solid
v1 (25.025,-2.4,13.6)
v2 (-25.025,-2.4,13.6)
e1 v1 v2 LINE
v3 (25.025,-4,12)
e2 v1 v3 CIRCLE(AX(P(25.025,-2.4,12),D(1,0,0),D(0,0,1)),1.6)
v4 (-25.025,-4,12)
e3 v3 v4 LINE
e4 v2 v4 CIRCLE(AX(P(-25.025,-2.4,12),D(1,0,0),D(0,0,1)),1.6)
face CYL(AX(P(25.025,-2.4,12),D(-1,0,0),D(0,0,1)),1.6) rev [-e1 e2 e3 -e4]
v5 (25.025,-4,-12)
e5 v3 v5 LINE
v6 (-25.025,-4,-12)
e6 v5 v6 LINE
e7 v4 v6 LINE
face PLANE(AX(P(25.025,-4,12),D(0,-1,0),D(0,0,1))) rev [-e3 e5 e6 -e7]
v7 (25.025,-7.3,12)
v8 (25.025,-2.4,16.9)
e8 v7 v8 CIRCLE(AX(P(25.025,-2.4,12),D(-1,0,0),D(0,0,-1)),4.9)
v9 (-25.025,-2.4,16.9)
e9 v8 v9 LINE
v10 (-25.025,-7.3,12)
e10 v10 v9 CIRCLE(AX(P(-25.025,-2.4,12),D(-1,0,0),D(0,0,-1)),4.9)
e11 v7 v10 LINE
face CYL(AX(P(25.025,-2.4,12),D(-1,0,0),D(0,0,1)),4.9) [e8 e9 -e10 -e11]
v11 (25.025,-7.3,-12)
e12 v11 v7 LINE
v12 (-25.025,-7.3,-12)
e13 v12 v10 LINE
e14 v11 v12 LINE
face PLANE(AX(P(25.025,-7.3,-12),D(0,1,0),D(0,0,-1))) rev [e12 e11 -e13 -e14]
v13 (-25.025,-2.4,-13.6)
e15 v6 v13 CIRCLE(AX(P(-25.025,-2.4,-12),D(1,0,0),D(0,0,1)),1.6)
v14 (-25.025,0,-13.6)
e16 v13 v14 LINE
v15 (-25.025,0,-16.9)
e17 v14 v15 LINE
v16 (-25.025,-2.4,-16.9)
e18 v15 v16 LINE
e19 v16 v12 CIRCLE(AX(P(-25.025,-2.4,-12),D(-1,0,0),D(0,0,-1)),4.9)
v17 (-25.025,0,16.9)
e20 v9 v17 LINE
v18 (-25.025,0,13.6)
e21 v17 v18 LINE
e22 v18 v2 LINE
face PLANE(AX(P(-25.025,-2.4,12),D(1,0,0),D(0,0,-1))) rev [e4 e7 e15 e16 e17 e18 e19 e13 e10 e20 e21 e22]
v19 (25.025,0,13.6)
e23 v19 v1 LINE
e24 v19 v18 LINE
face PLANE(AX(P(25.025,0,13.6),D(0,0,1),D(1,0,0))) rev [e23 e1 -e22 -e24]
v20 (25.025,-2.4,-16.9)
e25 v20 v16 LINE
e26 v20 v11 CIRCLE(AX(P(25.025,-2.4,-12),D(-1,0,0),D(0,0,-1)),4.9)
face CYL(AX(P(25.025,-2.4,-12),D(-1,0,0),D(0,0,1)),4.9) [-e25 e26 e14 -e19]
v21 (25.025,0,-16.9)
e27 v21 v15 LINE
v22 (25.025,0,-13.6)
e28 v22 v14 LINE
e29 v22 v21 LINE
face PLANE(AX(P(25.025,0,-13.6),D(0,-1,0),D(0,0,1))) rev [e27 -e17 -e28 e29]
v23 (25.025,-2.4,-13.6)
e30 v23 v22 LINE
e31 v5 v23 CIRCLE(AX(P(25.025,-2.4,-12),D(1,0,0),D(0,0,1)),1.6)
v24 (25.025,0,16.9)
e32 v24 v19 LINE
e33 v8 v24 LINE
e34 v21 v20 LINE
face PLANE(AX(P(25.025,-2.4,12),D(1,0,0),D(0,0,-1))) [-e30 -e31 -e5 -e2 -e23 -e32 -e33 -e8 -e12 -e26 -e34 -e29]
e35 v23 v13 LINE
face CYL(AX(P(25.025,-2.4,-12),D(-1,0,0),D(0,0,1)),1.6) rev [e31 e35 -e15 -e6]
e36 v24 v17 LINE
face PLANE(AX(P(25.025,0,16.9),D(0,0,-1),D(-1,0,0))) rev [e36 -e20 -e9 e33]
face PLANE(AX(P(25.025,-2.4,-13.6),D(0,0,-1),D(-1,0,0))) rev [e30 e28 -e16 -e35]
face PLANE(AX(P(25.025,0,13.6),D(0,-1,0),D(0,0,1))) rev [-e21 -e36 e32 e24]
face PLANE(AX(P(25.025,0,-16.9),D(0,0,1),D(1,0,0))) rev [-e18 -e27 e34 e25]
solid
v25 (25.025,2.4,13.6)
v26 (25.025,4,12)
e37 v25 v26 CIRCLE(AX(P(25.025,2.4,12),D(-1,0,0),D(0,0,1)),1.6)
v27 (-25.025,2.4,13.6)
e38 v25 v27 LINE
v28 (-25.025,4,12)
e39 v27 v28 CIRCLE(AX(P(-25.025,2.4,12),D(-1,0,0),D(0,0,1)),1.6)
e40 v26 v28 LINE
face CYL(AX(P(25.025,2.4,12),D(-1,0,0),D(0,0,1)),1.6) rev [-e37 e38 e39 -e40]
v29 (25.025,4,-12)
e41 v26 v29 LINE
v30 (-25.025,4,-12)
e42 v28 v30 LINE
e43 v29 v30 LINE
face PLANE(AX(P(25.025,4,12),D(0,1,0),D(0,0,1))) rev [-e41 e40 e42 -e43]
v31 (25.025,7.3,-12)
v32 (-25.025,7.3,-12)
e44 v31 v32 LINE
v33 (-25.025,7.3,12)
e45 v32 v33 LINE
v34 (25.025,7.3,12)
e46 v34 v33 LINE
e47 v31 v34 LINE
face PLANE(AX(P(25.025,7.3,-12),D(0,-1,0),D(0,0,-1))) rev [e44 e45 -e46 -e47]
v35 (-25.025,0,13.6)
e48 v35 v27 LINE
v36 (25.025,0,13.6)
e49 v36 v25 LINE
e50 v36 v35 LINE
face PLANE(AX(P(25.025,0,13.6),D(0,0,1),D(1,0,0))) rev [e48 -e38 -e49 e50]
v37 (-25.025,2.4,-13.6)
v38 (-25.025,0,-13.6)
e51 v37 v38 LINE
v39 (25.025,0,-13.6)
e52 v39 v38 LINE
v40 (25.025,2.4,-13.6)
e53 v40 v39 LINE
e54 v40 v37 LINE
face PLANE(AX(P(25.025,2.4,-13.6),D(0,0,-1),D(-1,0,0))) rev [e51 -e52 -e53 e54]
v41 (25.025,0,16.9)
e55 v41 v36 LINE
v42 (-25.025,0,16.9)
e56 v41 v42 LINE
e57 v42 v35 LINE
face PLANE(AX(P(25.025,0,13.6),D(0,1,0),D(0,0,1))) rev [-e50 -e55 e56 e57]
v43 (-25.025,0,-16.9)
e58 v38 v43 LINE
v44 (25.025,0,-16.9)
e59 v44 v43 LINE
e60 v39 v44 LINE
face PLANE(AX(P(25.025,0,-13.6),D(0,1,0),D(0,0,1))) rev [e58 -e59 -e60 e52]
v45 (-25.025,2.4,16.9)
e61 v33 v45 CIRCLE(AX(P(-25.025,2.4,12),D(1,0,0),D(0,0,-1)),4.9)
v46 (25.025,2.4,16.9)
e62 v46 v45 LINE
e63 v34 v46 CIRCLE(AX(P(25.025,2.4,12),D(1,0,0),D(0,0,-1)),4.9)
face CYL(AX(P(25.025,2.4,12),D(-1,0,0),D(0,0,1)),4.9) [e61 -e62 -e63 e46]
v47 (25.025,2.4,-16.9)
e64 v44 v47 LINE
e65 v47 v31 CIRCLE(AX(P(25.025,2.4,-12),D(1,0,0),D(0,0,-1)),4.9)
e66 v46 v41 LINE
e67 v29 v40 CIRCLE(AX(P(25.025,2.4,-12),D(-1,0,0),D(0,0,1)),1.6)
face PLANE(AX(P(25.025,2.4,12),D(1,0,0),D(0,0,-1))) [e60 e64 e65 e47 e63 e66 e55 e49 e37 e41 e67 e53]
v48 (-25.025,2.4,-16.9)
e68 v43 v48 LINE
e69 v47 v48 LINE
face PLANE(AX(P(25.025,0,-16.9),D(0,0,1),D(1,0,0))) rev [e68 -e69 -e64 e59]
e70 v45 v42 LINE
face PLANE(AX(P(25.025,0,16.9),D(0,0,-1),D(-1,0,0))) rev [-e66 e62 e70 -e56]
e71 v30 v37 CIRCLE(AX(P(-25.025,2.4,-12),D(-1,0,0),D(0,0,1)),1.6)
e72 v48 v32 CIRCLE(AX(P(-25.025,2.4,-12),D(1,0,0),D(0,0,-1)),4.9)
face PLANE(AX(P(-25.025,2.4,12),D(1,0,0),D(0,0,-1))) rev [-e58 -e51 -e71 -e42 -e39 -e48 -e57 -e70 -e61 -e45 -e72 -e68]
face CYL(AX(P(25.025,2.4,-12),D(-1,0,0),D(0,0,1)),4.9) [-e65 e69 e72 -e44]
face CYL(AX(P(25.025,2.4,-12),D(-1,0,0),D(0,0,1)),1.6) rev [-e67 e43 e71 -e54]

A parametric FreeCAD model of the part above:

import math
import FreeCAD as App
import Part
import Sketcher
Q = App.Units.Quantity

doc = App.newDocument("Part")
body = doc.addObject("PartDesign::Body", "Body")

# Sketch on YZ plane
sketch1 = doc.addObject("Sketcher::SketchObject", "Sketch")
body.addObject(sketch1)
sketch1.AttachmentSupport = (doc.YZ_Plane, [""])
sketch1.MapMode = "FlatFace"
sketch1.addGeometry([
    Part.LineSegment(App.Vector(0, 13.6, 0), App.Vector(2.4, 13.6, 0)),  # 0
    Part.ArcOfCircle(Part.Circle(App.Vector(2.4, 12, 0), App.Vector(0, 0, 1), 1.6), math.radians(0), math.radians(90)),  # 1
    Part.LineSegment(App.Vector(4, 12, 0), App.Vector(4, -12, 0)),  # 2
    Part.ArcOfCircle(Part.Circle(App.Vector(2.4, -12, 0), App.Vector(0, 0, 1), 1.6), math.radians(-90), math.radians(0)),  # 3
    Part.LineSegment(App.Vector(2.4, -13.6, 0), App.Vector(0, -13.6, 0)),  # 4
    Part.LineSegment(App.Vector(0, -13.6, 0), App.Vector(0, -16.9, 0)),  # 5
    Part.LineSegment(App.Vector(0, -16.9, 0), App.Vector(2.4, -16.9, 0)),  # 6
    Part.ArcOfCircle(Part.Circle(App.Vector(2.4, -12, 0), App.Vector(0, 0, 1), 4.9), math.radians(-90), math.radians(0)),  # 7
    Part.LineSegment(App.Vector(7.3, -12, 0), App.Vector(7.3, 12, 0)),  # 8
    Part.ArcOfCircle(Part.Circle(App.Vector(2.4, 12, 0), App.Vector(0, 0, 1), 4.9), math.radians(0), math.radians(90)),  # 9
    Part.LineSegment(App.Vector(2.4, 16.9, 0), App.Vector(0, 16.9, 0)),  # 10
    Part.LineSegment(App.Vector(0, 16.9, 0), App.Vector(0, 13.6, 0)),  # 11
], False)
sketch1.addConstraint([
    Sketcher.Constraint("Tangent", 0, 2, 1, 2),
    Sketcher.Constraint("Tangent", 1, 1, 2, 1),
    Sketcher.Constraint("Tangent", 2, 2, 3, 2),
    Sketcher.Constraint("Tangent", 3, 1, 4, 1),
    Sketcher.Constraint("Coincident", 4, 2, 5, 1),
    Sketcher.Constraint("Coincident", 5, 2, 6, 1),
    Sketcher.Constraint("Tangent", 6, 2, 7, 1),
    Sketcher.Constraint("Tangent", 7, 2, 8, 1),
    Sketcher.Constraint("Tangent", 8, 2, 9, 1),
    Sketcher.Constraint("Tangent", 9, 2, 10, 1),
    Sketcher.Constraint("Coincident", 10, 2, 11, 1),
    Sketcher.Constraint("Coincident", 11, 2, 0, 1),
    Sketcher.Constraint("Horizontal", 0),
    Sketcher.Constraint("Vertical", 2),
    Sketcher.Constraint("Horizontal", 4),
    Sketcher.Constraint("Vertical", 5),
    Sketcher.Constraint("Horizontal", 6),
    Sketcher.Constraint("Vertical", 8),
    Sketcher.Constraint("Horizontal", 10),
    Sketcher.Constraint("Vertical", 11),
    Sketcher.Constraint("Coincident", 7, 3, 3, 3),
    Sketcher.Constraint("Coincident", 9, 3, 1, 3),
    Sketcher.Constraint("Equal", 1, 3),
    Sketcher.Constraint("Symmetric", 5, 2, 10, 2, -1, 1),
    Sketcher.Constraint("PointOnObject", 4, 2, -2),
    Sketcher.Constraint("Radius", 1, Q("1.6 mm")),
    Sketcher.Constraint("Radius", 7, Q("4.9 mm")),
    Sketcher.Constraint("DistanceY", 2, 2, 2, 1, Q("24 mm")),
    Sketcher.Constraint("DistanceX", 0, 1, 0, 2, Q("2.4 mm")),
])
pad1 = doc.addObject("PartDesign::Pad", "Pad")
body.addObject(pad1)
pad1.Profile = sketch1
pad1.Length = 50.05
pad1.Midplane = True
body2 = doc.addObject("PartDesign::Body", "Body001")
doc.recompute()

mirroring = doc.addObject("Part::Mirroring", "Mirroring")
mirroring.Source = body
mirroring.Base = App.Vector(0, 0, 0)
mirroring.Normal = App.Vector(0, 1, 0)
body2.BaseFeature = mirroring
doc.recompute()
mirroring.Visibility = False

doc.recompute()
